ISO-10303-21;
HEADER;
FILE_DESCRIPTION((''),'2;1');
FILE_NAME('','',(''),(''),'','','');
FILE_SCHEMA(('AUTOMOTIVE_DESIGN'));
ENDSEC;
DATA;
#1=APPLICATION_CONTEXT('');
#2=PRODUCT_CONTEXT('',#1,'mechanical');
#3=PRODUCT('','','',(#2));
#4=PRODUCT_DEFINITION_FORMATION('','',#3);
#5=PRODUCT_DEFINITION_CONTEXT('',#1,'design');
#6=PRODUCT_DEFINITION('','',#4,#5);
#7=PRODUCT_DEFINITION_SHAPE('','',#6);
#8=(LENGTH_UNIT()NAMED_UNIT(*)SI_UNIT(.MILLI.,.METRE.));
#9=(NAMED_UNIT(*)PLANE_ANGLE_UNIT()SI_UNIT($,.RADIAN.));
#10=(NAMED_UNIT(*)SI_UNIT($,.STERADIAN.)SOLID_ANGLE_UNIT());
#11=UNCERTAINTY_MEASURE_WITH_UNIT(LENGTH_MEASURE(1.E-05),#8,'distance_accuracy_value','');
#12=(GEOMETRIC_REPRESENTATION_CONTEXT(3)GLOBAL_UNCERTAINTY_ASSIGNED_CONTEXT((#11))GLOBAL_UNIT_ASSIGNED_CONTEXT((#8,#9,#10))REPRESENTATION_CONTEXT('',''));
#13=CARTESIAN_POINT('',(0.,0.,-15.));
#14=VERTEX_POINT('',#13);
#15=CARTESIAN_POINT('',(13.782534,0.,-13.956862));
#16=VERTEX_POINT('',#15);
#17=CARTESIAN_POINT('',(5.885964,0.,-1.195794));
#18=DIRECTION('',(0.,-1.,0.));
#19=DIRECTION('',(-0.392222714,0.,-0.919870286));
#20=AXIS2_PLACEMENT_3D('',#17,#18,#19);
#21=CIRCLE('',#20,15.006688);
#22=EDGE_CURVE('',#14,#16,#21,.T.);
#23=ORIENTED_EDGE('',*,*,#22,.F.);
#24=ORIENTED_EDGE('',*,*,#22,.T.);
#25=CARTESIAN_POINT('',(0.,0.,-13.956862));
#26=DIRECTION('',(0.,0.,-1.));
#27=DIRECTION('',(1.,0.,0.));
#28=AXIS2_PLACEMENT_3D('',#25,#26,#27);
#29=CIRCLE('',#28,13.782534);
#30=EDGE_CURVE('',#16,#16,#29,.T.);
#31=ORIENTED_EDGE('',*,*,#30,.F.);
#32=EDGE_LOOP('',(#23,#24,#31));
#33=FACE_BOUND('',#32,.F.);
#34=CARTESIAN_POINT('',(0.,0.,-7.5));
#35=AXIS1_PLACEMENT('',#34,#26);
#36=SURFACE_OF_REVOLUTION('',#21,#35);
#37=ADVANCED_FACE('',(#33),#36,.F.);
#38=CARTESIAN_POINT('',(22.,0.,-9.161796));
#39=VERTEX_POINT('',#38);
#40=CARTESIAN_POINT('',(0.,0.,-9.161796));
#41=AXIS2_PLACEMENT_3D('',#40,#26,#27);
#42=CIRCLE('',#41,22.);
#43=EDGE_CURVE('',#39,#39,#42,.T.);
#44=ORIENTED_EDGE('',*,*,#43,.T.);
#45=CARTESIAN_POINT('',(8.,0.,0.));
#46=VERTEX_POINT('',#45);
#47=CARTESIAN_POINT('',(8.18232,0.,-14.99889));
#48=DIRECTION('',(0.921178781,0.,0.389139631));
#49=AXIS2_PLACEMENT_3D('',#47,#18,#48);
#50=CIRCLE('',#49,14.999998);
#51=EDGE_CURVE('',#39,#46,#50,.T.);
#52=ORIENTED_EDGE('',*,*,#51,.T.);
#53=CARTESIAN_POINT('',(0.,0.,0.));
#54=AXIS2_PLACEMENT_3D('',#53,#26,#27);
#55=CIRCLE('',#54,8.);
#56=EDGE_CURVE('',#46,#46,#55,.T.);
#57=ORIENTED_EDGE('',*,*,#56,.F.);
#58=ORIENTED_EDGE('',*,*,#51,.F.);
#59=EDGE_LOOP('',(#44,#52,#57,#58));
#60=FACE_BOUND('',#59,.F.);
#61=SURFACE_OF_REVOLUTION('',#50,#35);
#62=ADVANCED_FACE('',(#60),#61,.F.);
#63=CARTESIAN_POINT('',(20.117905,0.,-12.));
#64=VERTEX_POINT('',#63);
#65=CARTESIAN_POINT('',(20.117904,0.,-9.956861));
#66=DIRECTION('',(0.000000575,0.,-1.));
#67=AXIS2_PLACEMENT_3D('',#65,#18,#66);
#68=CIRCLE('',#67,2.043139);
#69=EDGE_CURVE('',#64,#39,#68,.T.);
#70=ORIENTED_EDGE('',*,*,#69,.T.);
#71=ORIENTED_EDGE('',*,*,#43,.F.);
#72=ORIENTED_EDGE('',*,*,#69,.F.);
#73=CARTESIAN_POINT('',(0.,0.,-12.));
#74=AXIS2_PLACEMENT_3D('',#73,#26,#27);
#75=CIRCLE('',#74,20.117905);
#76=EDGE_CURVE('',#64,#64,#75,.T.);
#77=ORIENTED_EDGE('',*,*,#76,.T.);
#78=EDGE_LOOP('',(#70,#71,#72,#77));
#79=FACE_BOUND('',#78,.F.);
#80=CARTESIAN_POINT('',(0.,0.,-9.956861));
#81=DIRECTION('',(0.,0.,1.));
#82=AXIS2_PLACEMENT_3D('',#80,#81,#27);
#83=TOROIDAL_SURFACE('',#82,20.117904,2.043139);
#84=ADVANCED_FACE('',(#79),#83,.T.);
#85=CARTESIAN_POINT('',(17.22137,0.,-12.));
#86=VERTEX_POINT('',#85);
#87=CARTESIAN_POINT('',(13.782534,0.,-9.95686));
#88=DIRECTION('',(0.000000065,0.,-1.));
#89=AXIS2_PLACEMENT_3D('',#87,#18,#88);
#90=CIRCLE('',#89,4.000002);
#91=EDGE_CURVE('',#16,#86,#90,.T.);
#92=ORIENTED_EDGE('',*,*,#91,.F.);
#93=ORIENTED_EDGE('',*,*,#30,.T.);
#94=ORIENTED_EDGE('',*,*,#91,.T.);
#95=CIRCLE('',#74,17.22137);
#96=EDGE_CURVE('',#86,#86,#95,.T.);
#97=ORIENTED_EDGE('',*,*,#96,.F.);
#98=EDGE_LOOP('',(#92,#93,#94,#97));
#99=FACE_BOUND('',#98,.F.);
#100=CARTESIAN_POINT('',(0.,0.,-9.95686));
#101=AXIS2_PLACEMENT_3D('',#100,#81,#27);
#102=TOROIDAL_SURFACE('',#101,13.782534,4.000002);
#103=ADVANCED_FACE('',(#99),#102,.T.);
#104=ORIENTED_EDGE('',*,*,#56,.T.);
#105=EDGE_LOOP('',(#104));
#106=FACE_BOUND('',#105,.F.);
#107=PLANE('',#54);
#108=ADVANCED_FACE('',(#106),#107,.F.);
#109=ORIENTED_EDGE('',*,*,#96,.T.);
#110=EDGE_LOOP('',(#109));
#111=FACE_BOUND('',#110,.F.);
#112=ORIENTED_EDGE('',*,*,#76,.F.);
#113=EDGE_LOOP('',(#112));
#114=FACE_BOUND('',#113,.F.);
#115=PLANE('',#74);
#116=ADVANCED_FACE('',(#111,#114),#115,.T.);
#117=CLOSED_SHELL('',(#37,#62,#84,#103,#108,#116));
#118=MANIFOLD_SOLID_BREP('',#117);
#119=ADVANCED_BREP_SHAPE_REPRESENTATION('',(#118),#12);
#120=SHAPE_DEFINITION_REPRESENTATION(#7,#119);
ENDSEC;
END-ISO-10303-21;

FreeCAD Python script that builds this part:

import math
import FreeCAD as App
import Part
import Sketcher
from FreeCAD import Vector

doc = App.newDocument("Part")
body = doc.addObject("PartDesign::Body", "Body")

# Sketch on XZ plane
sketch1 = body.newObject("Sketcher::SketchObject", "Sketch")
sketch1.AttachmentSupport = (doc.getObject("XZ_Plane"), [""])
sketch1.MapMode = "FlatFace"
sketch1.addGeometry([
    Part.ArcOfCircle(Part.Circle(Vector(20.117904, -9.956861, 0), Vector(0, 0, 1), 2.043139), math.radians(-89.999967), math.radians(22.900953)),  # 0
    Part.ArcOfCircle(Part.Circle(Vector(8.18232, -14.99889, 0), Vector(0, 0, 1), 14.999998), math.radians(22.900975), math.radians(90.69643)),  # 1
    Part.LineSegment(Vector(8, 0, 0), Vector(0, 0, 0)),  # 2
    Part.LineSegment(Vector(0, 0, 0), Vector(0, -15, 0)),  # 3
    Part.ArcOfCircle(Part.Circle(Vector(5.885964, -1.195794, 0), Vector(0, 0, 1), 15.006688), math.radians(-113.092874), math.radians(-58.25071)),  # 4
    Part.ArcOfCircle(Part.Circle(Vector(13.782534, -9.95686, 0), Vector(0, 0, 1), 4.000002), math.radians(-89.999996), math.radians(-30.716115)),  # 5
    Part.LineSegment(Vector(17.22137, -12, 0), Vector(20.117905, -12, 0)),  # 6
], False)
sketch1.addConstraint([
    Sketcher.Constraint("Tangent", 0, 2, 1, 1),
    Sketcher.Constraint("Coincident", 1, 2, 2, 1),
    Sketcher.Constraint("Coincident", 2, 2, 3, 1),
    Sketcher.Constraint("Coincident", 3, 2, 4, 1),
    Sketcher.Constraint("Coincident", 4, 2, 5, 1),
    Sketcher.Constraint("Coincident", 5, 2, 6, 1),
    Sketcher.Constraint("Tangent", 6, 2, 0, 1),
    Sketcher.Constraint("Horizontal", 2),
    Sketcher.Constraint("Vertical", 3),
    Sketcher.Constraint("Horizontal", 6),
    Sketcher.Constraint("Coincident", 2, 2, -1, 1),
    Sketcher.Constraint("Horizontal", 0, 3, 5, 3),
    Sketcher.Constraint("Vertical", 5, 3, 4, 2),
    Sketcher.Constraint("Radius", 5, 4.000002),
    Sketcher.Constraint("DistanceX", 2, 2, 2, 1, 8.0),
    Sketcher.Constraint("DistanceY", 3, 2, 3, 1, 15.0),
    Sketcher.Constraint("DistanceX", -1, 1, 0, 2, 22.0),
    Sketcher.Constraint("DistanceY", 5, 2, -1, 1, 12.0),
    Sketcher.Constraint("Radius", 0, 2.043139),
    Sketcher.Constraint("Radius", 4, 15.006688),
    Sketcher.Constraint("Radius", 1, 14.999998),
    Sketcher.Constraint("DistanceX", 6, 1, 6, 2, 2.896535),
])
revolution = body.newObject("PartDesign::Revolution", "Revolution")
revolution.Profile = sketch1
revolution.ReferenceAxis = (sketch1, ["V_Axis"])
revolution.Angle = 360

doc.recompute()
